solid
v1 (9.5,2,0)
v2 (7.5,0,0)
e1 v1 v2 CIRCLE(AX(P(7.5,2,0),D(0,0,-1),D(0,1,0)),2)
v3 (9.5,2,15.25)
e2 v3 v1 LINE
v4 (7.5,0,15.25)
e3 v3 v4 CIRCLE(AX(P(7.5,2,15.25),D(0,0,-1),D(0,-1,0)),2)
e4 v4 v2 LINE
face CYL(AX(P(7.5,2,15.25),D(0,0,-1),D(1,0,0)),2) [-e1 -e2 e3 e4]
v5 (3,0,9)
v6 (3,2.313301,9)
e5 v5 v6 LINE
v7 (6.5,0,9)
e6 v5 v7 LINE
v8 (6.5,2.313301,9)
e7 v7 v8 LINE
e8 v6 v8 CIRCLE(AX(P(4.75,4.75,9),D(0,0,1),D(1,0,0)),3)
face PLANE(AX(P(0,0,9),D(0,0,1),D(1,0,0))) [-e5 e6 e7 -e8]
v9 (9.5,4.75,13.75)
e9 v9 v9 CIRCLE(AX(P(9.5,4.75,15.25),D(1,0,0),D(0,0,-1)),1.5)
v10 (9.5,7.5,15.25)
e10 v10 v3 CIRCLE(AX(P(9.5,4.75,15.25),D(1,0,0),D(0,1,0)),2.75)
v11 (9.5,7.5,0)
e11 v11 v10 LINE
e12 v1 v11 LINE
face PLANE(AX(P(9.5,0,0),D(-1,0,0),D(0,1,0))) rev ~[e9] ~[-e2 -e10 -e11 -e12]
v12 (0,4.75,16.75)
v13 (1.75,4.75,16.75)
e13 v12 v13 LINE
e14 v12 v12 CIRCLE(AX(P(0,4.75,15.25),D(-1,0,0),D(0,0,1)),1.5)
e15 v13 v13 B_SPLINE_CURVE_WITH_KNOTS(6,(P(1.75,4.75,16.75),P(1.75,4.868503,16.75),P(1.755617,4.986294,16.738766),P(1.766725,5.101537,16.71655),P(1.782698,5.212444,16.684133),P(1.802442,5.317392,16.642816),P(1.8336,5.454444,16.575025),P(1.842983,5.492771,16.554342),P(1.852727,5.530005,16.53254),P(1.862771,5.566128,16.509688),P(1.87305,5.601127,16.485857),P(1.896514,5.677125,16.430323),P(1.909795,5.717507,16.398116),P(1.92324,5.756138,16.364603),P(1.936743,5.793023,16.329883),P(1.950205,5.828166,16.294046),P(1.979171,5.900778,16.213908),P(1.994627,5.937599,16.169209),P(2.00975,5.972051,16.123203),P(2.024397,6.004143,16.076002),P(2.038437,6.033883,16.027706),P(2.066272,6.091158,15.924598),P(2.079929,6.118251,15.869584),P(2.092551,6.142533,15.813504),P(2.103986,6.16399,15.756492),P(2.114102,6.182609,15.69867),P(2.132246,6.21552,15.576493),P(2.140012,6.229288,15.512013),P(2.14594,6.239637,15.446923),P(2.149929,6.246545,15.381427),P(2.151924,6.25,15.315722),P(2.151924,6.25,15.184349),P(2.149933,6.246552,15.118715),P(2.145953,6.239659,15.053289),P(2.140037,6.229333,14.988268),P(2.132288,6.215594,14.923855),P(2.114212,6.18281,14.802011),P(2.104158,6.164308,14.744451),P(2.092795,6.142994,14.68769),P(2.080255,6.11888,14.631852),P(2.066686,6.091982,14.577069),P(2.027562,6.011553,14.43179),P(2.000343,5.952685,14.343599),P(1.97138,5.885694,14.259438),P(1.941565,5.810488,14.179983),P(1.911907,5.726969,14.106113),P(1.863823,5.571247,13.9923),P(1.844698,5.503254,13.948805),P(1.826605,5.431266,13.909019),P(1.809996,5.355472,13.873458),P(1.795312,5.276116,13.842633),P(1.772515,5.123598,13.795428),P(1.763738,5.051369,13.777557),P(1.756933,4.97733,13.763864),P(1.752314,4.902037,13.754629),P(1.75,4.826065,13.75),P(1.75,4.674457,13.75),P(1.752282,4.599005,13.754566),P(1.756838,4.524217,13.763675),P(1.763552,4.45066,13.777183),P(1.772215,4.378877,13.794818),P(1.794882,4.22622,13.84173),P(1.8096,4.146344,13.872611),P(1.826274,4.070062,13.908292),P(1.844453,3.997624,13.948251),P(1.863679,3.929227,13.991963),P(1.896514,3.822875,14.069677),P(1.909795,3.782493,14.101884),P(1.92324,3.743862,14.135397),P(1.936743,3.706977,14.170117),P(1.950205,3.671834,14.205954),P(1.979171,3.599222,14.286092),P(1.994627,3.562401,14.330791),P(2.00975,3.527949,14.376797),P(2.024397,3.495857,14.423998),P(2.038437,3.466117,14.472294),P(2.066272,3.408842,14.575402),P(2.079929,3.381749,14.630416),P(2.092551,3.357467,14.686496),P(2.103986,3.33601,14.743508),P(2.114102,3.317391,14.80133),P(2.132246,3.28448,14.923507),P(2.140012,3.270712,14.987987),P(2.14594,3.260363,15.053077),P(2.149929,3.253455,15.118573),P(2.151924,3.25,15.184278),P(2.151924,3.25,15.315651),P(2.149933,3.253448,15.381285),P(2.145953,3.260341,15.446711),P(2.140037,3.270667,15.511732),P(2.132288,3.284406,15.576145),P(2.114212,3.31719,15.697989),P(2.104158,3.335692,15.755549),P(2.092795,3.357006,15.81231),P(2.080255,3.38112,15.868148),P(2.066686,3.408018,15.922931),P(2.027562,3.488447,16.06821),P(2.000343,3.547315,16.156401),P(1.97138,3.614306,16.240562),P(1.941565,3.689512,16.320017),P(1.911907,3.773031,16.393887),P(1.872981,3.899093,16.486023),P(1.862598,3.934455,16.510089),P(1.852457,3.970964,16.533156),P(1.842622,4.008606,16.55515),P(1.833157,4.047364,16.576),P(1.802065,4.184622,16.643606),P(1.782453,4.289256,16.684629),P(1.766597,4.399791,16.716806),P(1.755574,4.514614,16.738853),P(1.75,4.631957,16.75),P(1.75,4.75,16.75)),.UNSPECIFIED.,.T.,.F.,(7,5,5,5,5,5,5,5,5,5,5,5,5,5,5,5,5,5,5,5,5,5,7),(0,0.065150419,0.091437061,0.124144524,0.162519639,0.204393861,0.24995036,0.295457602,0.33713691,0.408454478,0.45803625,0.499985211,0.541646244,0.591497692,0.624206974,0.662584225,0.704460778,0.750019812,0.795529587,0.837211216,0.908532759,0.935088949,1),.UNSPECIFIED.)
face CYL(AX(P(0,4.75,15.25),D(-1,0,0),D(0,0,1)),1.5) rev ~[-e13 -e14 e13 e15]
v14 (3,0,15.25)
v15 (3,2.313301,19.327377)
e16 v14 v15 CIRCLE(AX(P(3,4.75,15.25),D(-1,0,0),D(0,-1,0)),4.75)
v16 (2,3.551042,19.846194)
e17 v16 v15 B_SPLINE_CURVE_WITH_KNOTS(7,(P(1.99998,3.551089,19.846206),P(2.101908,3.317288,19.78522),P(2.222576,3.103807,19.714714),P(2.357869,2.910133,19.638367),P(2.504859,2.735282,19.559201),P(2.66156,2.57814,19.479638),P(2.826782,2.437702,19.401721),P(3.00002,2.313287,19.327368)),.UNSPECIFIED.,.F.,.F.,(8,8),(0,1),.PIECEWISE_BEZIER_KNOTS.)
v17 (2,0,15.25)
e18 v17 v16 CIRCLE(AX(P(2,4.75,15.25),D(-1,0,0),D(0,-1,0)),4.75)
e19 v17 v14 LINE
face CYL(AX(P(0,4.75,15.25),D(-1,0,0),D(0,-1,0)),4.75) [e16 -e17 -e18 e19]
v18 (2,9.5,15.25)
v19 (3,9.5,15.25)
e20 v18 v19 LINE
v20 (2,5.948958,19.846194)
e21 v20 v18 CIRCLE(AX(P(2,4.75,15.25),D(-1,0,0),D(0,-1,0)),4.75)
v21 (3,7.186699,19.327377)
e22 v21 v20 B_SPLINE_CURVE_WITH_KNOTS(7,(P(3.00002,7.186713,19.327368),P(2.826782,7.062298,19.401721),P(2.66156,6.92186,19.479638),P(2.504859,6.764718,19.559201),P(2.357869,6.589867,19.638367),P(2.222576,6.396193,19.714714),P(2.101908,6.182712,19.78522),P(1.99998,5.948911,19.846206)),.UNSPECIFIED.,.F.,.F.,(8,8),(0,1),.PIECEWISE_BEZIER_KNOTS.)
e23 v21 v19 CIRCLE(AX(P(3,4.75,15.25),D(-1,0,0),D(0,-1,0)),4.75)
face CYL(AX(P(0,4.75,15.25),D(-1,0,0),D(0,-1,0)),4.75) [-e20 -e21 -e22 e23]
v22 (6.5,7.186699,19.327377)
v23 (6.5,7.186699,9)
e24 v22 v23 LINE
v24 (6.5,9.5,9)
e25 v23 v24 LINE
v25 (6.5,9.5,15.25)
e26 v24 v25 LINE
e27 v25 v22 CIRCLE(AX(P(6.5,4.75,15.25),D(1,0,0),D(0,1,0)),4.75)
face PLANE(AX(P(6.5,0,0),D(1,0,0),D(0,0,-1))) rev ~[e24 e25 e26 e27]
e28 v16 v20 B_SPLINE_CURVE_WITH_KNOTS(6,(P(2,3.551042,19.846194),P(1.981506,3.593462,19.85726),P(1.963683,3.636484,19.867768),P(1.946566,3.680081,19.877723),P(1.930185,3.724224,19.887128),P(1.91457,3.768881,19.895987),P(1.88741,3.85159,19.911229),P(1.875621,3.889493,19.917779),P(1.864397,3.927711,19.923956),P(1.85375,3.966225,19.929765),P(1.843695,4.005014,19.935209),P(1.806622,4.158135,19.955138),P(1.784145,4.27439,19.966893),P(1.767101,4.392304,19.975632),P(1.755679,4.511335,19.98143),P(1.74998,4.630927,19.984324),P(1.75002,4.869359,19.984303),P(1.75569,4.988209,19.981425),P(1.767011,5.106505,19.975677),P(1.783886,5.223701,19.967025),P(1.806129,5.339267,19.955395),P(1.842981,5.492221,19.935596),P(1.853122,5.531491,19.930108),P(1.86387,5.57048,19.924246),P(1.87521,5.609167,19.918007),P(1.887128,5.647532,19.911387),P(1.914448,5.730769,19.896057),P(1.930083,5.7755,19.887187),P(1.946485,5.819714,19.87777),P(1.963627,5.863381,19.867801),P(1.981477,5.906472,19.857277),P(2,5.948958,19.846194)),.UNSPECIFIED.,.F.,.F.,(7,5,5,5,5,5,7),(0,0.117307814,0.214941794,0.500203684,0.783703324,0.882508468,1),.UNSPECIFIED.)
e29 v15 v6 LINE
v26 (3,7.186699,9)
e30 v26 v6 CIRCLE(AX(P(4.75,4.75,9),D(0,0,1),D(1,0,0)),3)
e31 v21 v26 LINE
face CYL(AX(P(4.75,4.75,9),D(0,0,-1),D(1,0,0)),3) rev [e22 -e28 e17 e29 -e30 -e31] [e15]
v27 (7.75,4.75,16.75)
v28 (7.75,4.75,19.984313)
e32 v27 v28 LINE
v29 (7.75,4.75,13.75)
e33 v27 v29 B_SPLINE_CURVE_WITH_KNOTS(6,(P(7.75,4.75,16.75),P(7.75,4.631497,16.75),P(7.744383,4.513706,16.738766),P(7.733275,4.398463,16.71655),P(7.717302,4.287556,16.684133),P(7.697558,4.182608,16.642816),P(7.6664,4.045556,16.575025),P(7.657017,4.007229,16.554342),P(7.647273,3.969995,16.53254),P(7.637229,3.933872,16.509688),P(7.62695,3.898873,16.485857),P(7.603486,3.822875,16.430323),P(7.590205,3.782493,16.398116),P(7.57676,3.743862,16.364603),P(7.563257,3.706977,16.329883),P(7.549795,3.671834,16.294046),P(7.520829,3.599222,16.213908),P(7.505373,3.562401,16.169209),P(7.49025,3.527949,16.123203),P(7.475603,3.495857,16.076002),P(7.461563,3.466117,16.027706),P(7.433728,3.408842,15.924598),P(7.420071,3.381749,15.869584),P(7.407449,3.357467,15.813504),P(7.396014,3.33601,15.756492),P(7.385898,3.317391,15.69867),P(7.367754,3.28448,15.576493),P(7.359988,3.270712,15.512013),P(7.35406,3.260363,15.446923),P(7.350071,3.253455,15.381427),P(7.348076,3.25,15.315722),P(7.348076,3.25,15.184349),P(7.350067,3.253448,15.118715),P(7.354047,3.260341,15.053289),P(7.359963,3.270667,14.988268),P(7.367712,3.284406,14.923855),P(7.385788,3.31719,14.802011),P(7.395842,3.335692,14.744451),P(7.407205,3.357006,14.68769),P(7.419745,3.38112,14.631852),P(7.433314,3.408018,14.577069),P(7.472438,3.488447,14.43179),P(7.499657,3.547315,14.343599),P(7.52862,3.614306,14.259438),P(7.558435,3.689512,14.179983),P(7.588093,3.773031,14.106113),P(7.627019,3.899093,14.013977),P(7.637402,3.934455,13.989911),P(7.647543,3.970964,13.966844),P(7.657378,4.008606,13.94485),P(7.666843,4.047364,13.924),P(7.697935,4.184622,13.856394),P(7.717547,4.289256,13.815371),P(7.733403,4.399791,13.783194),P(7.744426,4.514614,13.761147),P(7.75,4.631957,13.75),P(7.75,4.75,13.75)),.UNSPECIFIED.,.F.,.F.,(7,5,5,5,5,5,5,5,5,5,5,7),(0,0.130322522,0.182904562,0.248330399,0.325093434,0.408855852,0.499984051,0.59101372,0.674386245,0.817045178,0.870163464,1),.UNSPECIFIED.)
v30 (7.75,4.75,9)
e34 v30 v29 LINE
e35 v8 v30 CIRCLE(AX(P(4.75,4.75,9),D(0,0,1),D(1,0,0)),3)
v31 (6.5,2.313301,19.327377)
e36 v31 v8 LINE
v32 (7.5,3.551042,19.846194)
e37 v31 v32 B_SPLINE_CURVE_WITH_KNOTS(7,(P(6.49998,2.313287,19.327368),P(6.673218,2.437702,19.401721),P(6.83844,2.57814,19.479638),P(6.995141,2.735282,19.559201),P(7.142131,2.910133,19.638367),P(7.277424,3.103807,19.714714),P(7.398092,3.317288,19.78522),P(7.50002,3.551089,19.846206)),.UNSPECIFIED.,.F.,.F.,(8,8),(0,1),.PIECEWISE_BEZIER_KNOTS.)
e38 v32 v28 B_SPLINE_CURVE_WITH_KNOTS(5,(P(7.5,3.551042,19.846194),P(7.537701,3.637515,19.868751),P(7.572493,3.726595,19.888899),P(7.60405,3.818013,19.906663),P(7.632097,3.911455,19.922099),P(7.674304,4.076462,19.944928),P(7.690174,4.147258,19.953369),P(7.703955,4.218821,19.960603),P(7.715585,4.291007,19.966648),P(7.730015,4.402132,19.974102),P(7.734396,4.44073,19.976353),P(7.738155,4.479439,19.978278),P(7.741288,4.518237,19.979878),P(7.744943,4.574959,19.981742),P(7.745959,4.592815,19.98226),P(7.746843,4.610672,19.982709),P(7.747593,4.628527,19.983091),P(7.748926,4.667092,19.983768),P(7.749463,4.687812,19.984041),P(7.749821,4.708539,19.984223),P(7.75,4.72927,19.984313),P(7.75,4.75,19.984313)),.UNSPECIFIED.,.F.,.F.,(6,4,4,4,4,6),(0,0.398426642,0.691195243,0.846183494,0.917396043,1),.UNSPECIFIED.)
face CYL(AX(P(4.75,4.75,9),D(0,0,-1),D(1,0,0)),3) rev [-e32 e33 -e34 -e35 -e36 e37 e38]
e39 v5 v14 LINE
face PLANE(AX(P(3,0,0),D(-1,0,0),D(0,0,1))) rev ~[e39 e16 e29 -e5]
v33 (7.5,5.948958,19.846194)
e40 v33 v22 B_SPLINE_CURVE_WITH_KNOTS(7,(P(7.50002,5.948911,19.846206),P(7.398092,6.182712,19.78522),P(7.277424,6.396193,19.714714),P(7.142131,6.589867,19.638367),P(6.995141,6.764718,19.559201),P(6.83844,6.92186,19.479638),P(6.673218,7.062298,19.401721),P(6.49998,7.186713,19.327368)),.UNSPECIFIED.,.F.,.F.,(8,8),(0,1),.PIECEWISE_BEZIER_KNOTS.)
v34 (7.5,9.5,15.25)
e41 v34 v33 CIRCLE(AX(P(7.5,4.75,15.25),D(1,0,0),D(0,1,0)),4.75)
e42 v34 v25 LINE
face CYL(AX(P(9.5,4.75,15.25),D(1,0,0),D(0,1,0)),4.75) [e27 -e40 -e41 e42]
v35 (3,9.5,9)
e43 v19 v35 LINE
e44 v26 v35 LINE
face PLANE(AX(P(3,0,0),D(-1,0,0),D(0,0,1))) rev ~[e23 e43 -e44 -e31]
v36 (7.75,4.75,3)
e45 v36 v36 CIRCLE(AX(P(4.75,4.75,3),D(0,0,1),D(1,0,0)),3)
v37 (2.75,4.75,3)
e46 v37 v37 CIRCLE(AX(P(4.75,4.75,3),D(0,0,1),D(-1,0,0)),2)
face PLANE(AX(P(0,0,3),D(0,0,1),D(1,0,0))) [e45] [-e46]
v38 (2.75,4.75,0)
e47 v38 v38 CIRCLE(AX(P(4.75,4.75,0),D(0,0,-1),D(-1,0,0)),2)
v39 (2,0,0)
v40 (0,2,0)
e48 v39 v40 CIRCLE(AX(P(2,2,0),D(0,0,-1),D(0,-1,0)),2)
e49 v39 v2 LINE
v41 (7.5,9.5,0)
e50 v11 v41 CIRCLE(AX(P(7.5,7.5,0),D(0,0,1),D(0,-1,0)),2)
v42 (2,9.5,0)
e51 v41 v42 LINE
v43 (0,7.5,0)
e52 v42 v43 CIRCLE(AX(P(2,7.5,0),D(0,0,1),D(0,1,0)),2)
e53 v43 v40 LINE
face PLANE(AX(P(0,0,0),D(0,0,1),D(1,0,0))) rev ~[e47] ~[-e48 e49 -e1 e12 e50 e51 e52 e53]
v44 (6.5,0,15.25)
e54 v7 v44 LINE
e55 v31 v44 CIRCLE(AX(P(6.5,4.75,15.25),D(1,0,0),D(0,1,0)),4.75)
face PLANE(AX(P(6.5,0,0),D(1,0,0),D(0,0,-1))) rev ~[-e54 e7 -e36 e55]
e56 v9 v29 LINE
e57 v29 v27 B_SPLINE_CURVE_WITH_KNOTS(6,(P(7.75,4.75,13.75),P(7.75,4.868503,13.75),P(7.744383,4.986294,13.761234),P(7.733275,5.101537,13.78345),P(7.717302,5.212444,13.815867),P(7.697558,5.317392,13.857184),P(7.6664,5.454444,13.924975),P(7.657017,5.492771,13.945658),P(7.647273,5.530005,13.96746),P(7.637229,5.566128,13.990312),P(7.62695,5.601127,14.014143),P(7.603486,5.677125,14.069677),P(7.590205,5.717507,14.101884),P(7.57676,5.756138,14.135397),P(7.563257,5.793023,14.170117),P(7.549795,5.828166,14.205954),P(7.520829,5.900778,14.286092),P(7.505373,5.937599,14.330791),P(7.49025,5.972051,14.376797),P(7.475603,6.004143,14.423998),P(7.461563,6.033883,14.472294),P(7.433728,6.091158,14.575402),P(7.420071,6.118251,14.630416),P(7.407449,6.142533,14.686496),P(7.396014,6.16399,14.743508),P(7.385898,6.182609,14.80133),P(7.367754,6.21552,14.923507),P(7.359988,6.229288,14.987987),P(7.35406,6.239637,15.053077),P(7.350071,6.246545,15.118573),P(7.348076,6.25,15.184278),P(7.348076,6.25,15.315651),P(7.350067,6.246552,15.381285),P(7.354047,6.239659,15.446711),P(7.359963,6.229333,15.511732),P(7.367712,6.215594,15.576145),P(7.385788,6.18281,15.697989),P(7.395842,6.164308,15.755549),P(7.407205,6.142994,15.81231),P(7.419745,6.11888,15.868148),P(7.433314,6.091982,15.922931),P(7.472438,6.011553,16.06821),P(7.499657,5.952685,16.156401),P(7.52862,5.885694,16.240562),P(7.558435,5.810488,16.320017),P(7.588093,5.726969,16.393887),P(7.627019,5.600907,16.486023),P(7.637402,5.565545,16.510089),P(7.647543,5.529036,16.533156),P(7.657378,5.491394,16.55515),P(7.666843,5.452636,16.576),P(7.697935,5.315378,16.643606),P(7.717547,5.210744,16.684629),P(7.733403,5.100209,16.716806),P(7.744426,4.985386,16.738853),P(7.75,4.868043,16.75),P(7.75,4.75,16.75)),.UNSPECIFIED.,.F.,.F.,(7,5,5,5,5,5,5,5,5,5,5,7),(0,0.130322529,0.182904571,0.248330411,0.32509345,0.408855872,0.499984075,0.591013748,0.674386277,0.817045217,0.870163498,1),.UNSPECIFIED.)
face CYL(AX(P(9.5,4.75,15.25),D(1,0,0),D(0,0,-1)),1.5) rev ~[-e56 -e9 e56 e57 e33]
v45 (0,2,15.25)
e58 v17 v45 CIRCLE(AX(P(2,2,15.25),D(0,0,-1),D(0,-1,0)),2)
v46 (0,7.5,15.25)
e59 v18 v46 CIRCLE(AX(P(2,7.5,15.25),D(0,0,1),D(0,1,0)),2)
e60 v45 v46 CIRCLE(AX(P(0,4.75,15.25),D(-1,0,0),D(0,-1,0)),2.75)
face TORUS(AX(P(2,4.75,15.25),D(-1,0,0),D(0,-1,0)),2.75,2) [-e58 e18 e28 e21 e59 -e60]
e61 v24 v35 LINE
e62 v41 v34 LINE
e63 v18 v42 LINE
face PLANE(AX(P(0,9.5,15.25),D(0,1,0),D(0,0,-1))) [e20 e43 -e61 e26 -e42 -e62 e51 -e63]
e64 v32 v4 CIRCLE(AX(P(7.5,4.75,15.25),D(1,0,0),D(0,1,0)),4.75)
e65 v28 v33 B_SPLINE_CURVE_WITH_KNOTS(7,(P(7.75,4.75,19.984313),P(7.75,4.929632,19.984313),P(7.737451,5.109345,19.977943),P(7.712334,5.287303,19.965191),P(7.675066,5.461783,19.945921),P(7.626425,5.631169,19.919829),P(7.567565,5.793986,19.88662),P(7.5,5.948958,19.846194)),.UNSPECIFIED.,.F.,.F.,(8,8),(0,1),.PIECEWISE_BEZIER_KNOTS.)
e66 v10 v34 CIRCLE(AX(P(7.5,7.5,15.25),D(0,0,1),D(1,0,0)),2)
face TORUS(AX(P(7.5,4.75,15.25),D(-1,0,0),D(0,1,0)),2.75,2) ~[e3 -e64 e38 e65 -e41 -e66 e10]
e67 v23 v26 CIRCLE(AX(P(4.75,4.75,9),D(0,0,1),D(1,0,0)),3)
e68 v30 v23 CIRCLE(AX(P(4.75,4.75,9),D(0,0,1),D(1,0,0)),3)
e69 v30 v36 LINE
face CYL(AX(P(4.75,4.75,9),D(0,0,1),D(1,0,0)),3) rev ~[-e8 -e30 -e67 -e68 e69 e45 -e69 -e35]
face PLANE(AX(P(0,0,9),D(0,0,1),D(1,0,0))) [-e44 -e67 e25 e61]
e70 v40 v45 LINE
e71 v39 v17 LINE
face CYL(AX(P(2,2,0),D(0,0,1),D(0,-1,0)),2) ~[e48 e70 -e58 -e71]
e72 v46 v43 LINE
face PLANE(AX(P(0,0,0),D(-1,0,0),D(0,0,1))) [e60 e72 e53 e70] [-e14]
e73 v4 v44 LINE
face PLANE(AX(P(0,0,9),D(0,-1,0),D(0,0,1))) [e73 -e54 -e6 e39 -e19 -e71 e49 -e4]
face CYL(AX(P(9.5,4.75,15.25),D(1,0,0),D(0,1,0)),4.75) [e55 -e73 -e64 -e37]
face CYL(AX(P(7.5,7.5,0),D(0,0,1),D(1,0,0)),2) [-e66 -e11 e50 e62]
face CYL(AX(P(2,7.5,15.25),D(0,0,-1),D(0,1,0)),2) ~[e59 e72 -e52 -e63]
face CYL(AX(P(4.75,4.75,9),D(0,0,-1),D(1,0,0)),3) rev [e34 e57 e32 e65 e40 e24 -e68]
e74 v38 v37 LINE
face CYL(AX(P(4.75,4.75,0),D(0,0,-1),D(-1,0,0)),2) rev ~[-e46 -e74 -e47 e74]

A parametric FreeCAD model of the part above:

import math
import FreeCAD as App
import Part
import Sketcher


def edges_at(feature, points):
    """Names of the edges that pass closest to the given points."""
    edges = feature.Shape.Edges
    near = lambda p: min(range(len(edges)), key=lambda i: edges[i].distToShape(Part.Vertex(*p))[0])
    return sorted({f"Edge{near(p) + 1}" for p in points})

doc = App.newDocument("Part")
body = doc.addObject("PartDesign::Body", "Body")

sketch1 = doc.addObject("Sketcher::SketchObject", "Sketch")
body.addObject(sketch1)
sketch1.AttachmentSupport = (doc.XY_Plane, [""])
sketch1.MapMode = "FlatFace"
sketch1.addGeometry(Part.LineSegment(App.Vector(0, 9.5, 0), App.Vector(0, 0, 0)), False)
sketch1.addGeometry(Part.LineSegment(App.Vector(0, 0, 0), App.Vector(9.5, 0, 0)), False)
sketch1.addGeometry(Part.LineSegment(App.Vector(9.5, 0, 0), App.Vector(9.5, 9.5, 0)), False)
sketch1.addGeometry(Part.LineSegment(App.Vector(9.5, 9.5, 0), App.Vector(0, 9.5, 0)), False)
sketch1.addConstraint(Sketcher.Constraint("Coincident", 0, 2, 1, 1))
sketch1.addConstraint(Sketcher.Constraint("Coincident", 1, 2, 2, 1))
sketch1.addConstraint(Sketcher.Constraint("Coincident", 2, 2, 3, 1))
sketch1.addConstraint(Sketcher.Constraint("Coincident", 3, 2, 0, 1))
sketch1.addConstraint(Sketcher.Constraint("Vertical", 0))
sketch1.addConstraint(Sketcher.Constraint("Horizontal", 1))
sketch1.addConstraint(Sketcher.Constraint("Vertical", 2))
sketch1.addConstraint(Sketcher.Constraint("Horizontal", 3))
sketch1.addConstraint(Sketcher.Constraint("Coincident", 0, 2, -1, 1))
sketch1.addConstraint(Sketcher.Constraint("Equal", 3, 0))
sketch1.addConstraint(Sketcher.Constraint("DistanceX", 1, 1, 1, 2, 9.5))
pad1 = doc.addObject("PartDesign::Pad", "Pad")
body.addObject(pad1)
pad1.Profile = sketch1
pad1.Length = 9

sketch2 = doc.addObject("Sketcher::SketchObject", "Sketch001")
body.addObject(sketch2)
sketch2.AttachmentSupport = (doc.YZ_Plane, [""])
sketch2.MapMode = "FlatFace"
sketch2.AttachmentOffset = App.Placement(App.Vector(0, 0, 9.5), App.Rotation())
sketch2.addGeometry(Part.LineSegment(App.Vector(0, 15.25, 0), App.Vector(0, 9, 0)), False)
sketch2.addGeometry(Part.LineSegment(App.Vector(0, 9, 0), App.Vector(9.5, 9, 0)), False)
sketch2.addGeometry(Part.LineSegment(App.Vector(9.5, 9, 0), App.Vector(9.5, 15.25, 0)), False)
sketch2.addGeometry(Part.ArcOfCircle(Part.Circle(App.Vector(4.75, 15.25, 0), App.Vector(0, 0, 1), 4.75), math.radians(0), math.radians(180)), False)
sketch2.addGeometry(Part.Circle(App.Vector(4.75, 15.25, 0), App.Vector(0, 0, 1), 1.5), False)
sketch2.addConstraint(Sketcher.Constraint("Coincident", 0, 2, 1, 1))
sketch2.addConstraint(Sketcher.Constraint("Coincident", 1, 2, 2, 1))
sketch2.addConstraint(Sketcher.Constraint("Tangent", 2, 2, 3, 1))
sketch2.addConstraint(Sketcher.Constraint("Tangent", 3, 2, 0, 1))
sketch2.addConstraint(Sketcher.Constraint("Vertical", 0))
sketch2.addConstraint(Sketcher.Constraint("Horizontal", 1))
sketch2.addConstraint(Sketcher.Constraint("Vertical", 2))
sketch2.addConstraint(Sketcher.Constraint("Coincident", 4, 3, 3, 3))
sketch2.addConstraint(Sketcher.Constraint("PointOnObject", 0, 2, -2))
sketch2.addConstraint(Sketcher.Constraint("Diameter", 4, 3.0))
sketch2.addConstraint(Sketcher.Constraint("Radius", 3, 4.75))
sketch2.addConstraint(Sketcher.Constraint("DistanceY", -1, 1, 3, 3, 15.25))
sketch2.addConstraint(Sketcher.Constraint("DistanceY", -1, 1, 0, 2, 9.0))
pad2 = doc.addObject("PartDesign::Pad", "Pad001")
body.addObject(pad2)
pad2.Profile = sketch2
pad2.Length = 3
pad2.Reversed = True

sketch3 = doc.addObject("Sketcher::SketchObject", "Sketch002")
body.addObject(sketch3)
sketch3.AttachmentSupport = (doc.YZ_Plane, [""])
sketch3.MapMode = "FlatFace"
sketch3.addGeometry(Part.LineSegment(App.Vector(9.5, 9, 0), App.Vector(0, 9, 0)), False)
sketch3.addGeometry(Part.LineSegment(App.Vector(0, 9, 0), App.Vector(0, 15.25, 0)), False)
sketch3.addGeometry(Part.ArcOfCircle(Part.Circle(App.Vector(4.75, 15.25, 0), App.Vector(0, 0, 1), 4.75), math.radians(0), math.radians(180)), False)
sketch3.addGeometry(Part.LineSegment(App.Vector(9.5, 15.25, 0), App.Vector(9.5, 9, 0)), False)
sketch3.addGeometry(Part.Circle(App.Vector(4.75, 15.25, 0), App.Vector(0, 0, 1), 1.5), False)
sketch3.addConstraint(Sketcher.Constraint("Coincident", 0, 2, 1, 1))
sketch3.addConstraint(Sketcher.Constraint("Tangent", 1, 2, 2, 2))
sketch3.addConstraint(Sketcher.Constraint("Tangent", 2, 1, 3, 1))
sketch3.addConstraint(Sketcher.Constraint("Coincident", 3, 2, 0, 1))
sketch3.addConstraint(Sketcher.Constraint("Horizontal", 0))
sketch3.addConstraint(Sketcher.Constraint("Vertical", 1))
sketch3.addConstraint(Sketcher.Constraint("Vertical", 3))
sketch3.addConstraint(Sketcher.Constraint("Coincident", 4, 3, 2, 3))
sketch3.addConstraint(Sketcher.Constraint("PointOnObject", 0, 2, -2))
sketch3.addConstraint(Sketcher.Constraint("Diameter", 4, 3.0))
sketch3.addConstraint(Sketcher.Constraint("Radius", 2, 4.75))
sketch3.addConstraint(Sketcher.Constraint("DistanceY", -1, 1, 0, 2, 9.0))
sketch3.addConstraint(Sketcher.Constraint("DistanceY", 1, 1, 1, 2, 6.25))
pad3 = doc.addObject("PartDesign::Pad", "Pad002")
body.addObject(pad3)
pad3.Profile = sketch3
pad3.Length = 3
doc.recompute()

fillet = doc.addObject("PartDesign::Fillet", "Fillet")
body.addObject(fillet)
fillet.Base = (pad3, edges_at(pad3, [
    (0, 4.75, 20),
    (0, 0, 7.625),
    (0, 9.5, 7.625),
    (9.5, 4.75, 20),
    (9.5, 0, 7.625),
    (9.5, 9.5, 7.625),
]))
fillet.Radius = 2

sketch4 = doc.addObject("Sketcher::SketchObject", "Sketch003")
body.addObject(sketch4)
sketch4.AttachmentSupport = (doc.XY_Plane, [""])
sketch4.MapMode = "FlatFace"
sketch4.addGeometry(Part.Circle(App.Vector(4.75, 4.75, 0), App.Vector(0, 0, 1), 2), False)
sketch4.addConstraint(Sketcher.Constraint("Diameter", 0, 4.0))
sketch4.addConstraint(Sketcher.Constraint("DistanceX", -1, 1, 0, 3, 4.75))
sketch4.addConstraint(Sketcher.Constraint("DistanceY", -1, 1, 0, 3, 4.75))
pocket1 = doc.addObject("PartDesign::Pocket", "Pocket")
body.addObject(pocket1)
pocket1.Profile = sketch4
pocket1.Type = "ThroughAll"
pocket1.Reversed = True

sketch5 = doc.addObject("Sketcher::SketchObject", "Sketch004")
body.addObject(sketch5)
sketch5.AttachmentSupport = (doc.XY_Plane, [""])
sketch5.MapMode = "FlatFace"
sketch5.AttachmentOffset = App.Placement(App.Vector(0, 0, 9), App.Rotation())
sketch5.addGeometry(Part.Circle(App.Vector(4.75, 4.75, 0), App.Vector(0, 0, 1), 3), False)
sketch5.addGeometry(Part.Circle(App.Vector(4.75, 4.75, 0), App.Vector(0, 0, 1), 2), False)
sketch5.addConstraint(Sketcher.Constraint("Coincident", 1, 3, 0, 3))
sketch5.addConstraint(Sketcher.Constraint("Diameter", 0, 6.0))
sketch5.addConstraint(Sketcher.Constraint("Diameter", 1, 4.0))
sketch5.addConstraint(Sketcher.Constraint("DistanceX", -1, 1, 0, 3, 4.75))
sketch5.addConstraint(Sketcher.Constraint("DistanceY", -1, 1, 0, 3, 4.75))
pocket2 = doc.addObject("PartDesign::Pocket", "Pocket001")
body.addObject(pocket2)
pocket2.Profile = sketch5
pocket2.Type = "TwoLengths"
pocket2.Length = 15
pocket2.Length2 = 6
pocket2.Reversed = True

doc.recompute()
